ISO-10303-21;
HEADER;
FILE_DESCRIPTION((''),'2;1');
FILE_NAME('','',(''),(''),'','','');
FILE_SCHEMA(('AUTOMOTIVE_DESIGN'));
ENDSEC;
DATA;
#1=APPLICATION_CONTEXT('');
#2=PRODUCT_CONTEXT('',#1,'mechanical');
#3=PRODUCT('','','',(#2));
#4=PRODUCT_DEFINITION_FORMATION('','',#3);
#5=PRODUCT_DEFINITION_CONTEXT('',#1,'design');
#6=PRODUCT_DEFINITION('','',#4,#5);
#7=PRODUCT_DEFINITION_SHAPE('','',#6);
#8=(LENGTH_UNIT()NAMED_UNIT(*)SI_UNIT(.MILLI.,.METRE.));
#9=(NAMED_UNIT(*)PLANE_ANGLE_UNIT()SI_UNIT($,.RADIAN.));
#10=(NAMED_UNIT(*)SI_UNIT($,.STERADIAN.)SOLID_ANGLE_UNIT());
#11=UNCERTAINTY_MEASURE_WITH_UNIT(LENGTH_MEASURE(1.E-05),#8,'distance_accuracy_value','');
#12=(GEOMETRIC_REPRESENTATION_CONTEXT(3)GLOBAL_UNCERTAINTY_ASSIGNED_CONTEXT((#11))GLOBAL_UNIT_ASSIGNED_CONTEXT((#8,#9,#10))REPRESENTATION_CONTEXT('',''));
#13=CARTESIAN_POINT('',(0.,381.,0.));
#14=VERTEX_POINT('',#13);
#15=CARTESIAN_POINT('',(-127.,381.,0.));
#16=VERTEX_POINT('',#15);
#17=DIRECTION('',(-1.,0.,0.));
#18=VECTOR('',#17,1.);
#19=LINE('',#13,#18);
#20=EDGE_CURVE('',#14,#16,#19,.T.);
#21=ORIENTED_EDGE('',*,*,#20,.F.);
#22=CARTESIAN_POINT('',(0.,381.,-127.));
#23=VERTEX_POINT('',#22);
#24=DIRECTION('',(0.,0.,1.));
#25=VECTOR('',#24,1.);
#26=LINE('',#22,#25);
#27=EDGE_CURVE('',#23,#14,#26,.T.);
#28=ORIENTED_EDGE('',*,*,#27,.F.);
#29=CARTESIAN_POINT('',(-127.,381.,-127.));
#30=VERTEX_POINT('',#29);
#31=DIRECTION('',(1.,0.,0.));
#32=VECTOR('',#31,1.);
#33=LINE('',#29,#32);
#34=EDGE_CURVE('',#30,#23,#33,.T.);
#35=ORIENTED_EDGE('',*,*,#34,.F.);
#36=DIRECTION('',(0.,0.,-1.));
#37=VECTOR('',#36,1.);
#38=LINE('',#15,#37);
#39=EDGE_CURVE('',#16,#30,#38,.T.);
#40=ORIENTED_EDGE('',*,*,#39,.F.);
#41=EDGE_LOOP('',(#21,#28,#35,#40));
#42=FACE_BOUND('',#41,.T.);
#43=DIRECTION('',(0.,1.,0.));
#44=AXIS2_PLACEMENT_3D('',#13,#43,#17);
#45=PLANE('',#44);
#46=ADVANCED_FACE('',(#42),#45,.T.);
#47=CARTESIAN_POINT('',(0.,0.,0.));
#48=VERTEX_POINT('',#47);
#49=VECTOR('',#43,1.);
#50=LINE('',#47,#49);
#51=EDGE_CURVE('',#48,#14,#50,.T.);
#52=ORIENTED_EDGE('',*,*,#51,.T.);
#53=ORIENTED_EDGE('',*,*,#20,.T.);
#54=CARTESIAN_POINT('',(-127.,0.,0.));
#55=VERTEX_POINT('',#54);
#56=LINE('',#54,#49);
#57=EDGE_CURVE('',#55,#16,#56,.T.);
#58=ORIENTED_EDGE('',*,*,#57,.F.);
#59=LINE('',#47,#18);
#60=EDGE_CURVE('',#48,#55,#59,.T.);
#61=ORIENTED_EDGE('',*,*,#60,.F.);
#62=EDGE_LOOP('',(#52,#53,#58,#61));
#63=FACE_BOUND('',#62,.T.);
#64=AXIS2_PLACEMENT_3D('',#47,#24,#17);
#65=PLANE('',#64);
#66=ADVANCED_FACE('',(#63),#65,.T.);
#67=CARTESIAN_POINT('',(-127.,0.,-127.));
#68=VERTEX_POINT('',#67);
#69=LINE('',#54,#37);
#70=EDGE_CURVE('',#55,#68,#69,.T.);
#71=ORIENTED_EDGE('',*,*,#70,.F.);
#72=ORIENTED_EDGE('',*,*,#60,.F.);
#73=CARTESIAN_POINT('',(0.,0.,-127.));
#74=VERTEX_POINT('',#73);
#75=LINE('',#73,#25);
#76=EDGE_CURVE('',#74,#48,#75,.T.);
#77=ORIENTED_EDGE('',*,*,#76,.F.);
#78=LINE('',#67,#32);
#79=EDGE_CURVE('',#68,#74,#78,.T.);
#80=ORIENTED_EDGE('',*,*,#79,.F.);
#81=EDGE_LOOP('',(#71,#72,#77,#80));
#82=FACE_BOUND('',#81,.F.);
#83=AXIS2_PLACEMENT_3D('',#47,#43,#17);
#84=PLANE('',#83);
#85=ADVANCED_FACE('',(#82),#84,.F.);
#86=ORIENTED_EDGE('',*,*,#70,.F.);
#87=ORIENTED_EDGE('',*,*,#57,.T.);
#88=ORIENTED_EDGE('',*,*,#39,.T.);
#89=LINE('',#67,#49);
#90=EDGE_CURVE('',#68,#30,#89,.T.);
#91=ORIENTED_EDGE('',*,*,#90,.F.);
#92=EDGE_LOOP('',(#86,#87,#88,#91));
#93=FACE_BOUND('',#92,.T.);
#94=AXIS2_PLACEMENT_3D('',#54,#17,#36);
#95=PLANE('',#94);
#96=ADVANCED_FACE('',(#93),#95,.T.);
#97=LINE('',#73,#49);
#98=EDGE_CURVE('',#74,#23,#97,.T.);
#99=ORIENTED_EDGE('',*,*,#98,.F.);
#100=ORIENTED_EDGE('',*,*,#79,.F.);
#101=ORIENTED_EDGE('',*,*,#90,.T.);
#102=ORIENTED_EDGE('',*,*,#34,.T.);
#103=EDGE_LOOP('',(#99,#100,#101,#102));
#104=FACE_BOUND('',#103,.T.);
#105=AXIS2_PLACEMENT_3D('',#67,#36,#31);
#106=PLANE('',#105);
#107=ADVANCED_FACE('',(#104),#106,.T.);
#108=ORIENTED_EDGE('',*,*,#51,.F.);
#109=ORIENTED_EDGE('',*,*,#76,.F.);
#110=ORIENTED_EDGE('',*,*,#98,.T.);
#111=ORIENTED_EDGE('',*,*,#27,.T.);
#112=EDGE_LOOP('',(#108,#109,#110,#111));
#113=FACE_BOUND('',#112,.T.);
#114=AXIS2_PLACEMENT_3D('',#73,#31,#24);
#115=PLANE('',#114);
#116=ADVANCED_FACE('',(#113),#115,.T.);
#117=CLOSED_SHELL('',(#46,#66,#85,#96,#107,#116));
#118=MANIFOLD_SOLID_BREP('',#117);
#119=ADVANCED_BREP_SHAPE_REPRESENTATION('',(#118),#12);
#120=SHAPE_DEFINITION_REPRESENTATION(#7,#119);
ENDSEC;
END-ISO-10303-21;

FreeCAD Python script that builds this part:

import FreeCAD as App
import Part
import Sketcher
Q = App.Units.Quantity


def add_polygon(sketch, points):
    """Adds a closed chain of lines whose ends are joined by coincident constraints."""
    first, n = sketch.GeometryCount, len(points)
    for a, b in zip(points, points[1:] + points[:1]):
        sketch.addGeometry(Part.LineSegment(App.Vector(*a, 0), App.Vector(*b, 0)), False)
    for i in range(n):
        sketch.addConstraint(Sketcher.Constraint("Coincident", first + i, 2, first + (i + 1) % n, 1))

doc = App.newDocument("Part")
body = doc.addObject("PartDesign::Body", "Body")

sketch1 = doc.addObject("Sketcher::SketchObject", "Sketch")
body.addObject(sketch1)
sketch1.AttachmentSupport = (doc.XZ_Plane, [""])
sketch1.MapMode = "FlatFace"
add_polygon(sketch1, [(-127, 0), (0, 0), (0, -127), (-127, -127)])
sketch1.addConstraint(Sketcher.Constraint("Horizontal", 0))
sketch1.addConstraint(Sketcher.Constraint("Vertical", 1))
sketch1.addConstraint(Sketcher.Constraint("Horizontal", 2))
sketch1.addConstraint(Sketcher.Constraint("Vertical", 3))
sketch1.addConstraint(Sketcher.Constraint("Coincident", 0, 2, -1, 1))
sketch1.addConstraint(Sketcher.Constraint("Equal", 2, 1))
sketch1.addConstraint(Sketcher.Constraint("DistanceX", 0, 1, 0, 2, Q("5 in")))
pad1 = doc.addObject("PartDesign::Pad", "Pad")
body.addObject(pad1)
pad1.Profile = sketch1
pad1.Length = Q("15 in")
pad1.Reversed = True

doc.recompute()
